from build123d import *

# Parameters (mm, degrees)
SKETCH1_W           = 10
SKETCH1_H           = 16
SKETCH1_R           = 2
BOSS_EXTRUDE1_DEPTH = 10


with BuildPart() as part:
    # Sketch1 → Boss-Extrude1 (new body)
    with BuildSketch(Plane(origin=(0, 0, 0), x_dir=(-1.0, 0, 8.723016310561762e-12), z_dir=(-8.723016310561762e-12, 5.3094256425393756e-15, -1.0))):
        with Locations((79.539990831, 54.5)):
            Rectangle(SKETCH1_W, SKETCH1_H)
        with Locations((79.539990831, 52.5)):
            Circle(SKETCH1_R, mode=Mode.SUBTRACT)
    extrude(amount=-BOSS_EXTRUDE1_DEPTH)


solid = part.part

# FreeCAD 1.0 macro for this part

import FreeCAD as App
import Part
import Sketcher
from FreeCAD import Vector

doc = App.newDocument("Part")
body = doc.addObject("PartDesign::Body", "Body")

# Sketch on XY plane
sketch1 = body.newObject("Sketcher::SketchObject", "Sketch")
sketch1.AttachmentSupport = (doc.getObject("XY_Plane"), [""])
sketch1.MapMode = "FlatFace"
sketch1.addGeometry([
    Part.LineSegment(Vector(-74.5, 62.5, 0), Vector(-74.5, 46.5, 0)),  # 0
    Part.LineSegment(Vector(-74.5, 46.5, 0), Vector(-84.5, 46.5, 0)),  # 1
    Part.LineSegment(Vector(-84.5, 46.5, 0), Vector(-84.5, 62.5, 0)),  # 2
    Part.LineSegment(Vector(-84.5, 62.5, 0), Vector(-74.5, 62.5, 0)),  # 3
    Part.Circle(Vector(-79.5, 52.5, 0), Vector(0, 0, 1), 2),  # 4
], False)
sketch1.addConstraint([
    Sketcher.Constraint("Coincident", 0, 2, 1, 1),
    Sketcher.Constraint("Coincident", 1, 2, 2, 1),
    Sketcher.Constraint("Coincident", 2, 2, 3, 1),
    Sketcher.Constraint("Coincident", 3, 2, 0, 1),
    Sketcher.Constraint("Vertical", 0),
    Sketcher.Constraint("Horizontal", 1),
    Sketcher.Constraint("Vertical", 2),
    Sketcher.Constraint("Horizontal", 3),
    Sketcher.Constraint("Diameter", 4, 4.0),
    Sketcher.Constraint("DistanceX", 1, 2, 1, 1, 10.0),
    Sketcher.Constraint("DistanceY", 0, 2, 0, 1, 16.0),
    Sketcher.Constraint("DistanceX", 4, 3, 0, 2, 5.0),
    Sketcher.Constraint("DistanceY", 0, 2, 4, 3, 6.0),
    Sketcher.Constraint("DistanceY", -1, 1, 4, 3, 52.5),
    Sketcher.Constraint("DistanceX", 4, 3, -1, 1, 79.539991),
])
pad1 = body.newObject("PartDesign::Pad", "Pad")
pad1.Profile = sketch1
pad1.Length = 10

doc.recompute()
